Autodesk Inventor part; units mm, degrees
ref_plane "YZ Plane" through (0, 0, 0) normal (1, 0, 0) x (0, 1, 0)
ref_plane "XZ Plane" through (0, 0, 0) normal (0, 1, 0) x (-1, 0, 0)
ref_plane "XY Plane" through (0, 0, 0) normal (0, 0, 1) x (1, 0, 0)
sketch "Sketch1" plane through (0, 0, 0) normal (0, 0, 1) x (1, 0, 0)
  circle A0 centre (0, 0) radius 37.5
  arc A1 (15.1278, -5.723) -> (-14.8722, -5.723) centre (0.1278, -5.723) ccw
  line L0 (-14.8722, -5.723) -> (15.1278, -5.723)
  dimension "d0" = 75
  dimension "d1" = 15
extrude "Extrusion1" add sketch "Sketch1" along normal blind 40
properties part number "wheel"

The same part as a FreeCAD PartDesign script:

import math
import FreeCAD as App
import Part
import Sketcher
Q = App.Units.Quantity

doc = App.newDocument("Part")
body = doc.addObject("PartDesign::Body", "Body")

# Sketch on XY plane
sketch1 = body.newObject("Sketcher::SketchObject", "Sketch")
sketch1.AttachmentSupport = (doc.getObject("XY_Plane"), [""])
sketch1.MapMode = "FlatFace"
sketch1.addGeometry([
    Part.Circle(App.Vector(0, 0, 0), App.Vector(0, 0, 1), 37.5),
    Part.ArcOfCircle(Part.Circle(App.Vector(0.1278, -5.723, 0), App.Vector(0, 0, 1), 15), math.radians(0), math.radians(180)),
    Part.LineSegment(App.Vector(15.1278, -5.723, 0), App.Vector(-14.8722, -5.723, 0)),
], False)
sketch1.addConstraint([
    Sketcher.Constraint("Coincident", 1, 1, 2, 1),
    Sketcher.Constraint("Coincident", 2, 2, 1, 2),
    Sketcher.Constraint("Horizontal", 2),
    Sketcher.Constraint("Coincident", 0, 3, -1, 1),
    Sketcher.Constraint("Diameter", 0, Q("75 mm")),
    Sketcher.Constraint("Radius", 1, Q("15 mm")),
    Sketcher.Constraint("DistanceY", 1, 3, -1, 1, Q("5.723 mm")),
    Sketcher.Constraint("DistanceY", 1, 1, -1, 1, Q("5.723 mm")),
    Sketcher.Constraint("DistanceX", -1, 1, 1, 3, Q("0.1278 mm")),
])
pad1 = body.newObject("PartDesign::Pad", "Pad")
pad1.Profile = sketch1
pad1.Length = 40

doc.recompute()
